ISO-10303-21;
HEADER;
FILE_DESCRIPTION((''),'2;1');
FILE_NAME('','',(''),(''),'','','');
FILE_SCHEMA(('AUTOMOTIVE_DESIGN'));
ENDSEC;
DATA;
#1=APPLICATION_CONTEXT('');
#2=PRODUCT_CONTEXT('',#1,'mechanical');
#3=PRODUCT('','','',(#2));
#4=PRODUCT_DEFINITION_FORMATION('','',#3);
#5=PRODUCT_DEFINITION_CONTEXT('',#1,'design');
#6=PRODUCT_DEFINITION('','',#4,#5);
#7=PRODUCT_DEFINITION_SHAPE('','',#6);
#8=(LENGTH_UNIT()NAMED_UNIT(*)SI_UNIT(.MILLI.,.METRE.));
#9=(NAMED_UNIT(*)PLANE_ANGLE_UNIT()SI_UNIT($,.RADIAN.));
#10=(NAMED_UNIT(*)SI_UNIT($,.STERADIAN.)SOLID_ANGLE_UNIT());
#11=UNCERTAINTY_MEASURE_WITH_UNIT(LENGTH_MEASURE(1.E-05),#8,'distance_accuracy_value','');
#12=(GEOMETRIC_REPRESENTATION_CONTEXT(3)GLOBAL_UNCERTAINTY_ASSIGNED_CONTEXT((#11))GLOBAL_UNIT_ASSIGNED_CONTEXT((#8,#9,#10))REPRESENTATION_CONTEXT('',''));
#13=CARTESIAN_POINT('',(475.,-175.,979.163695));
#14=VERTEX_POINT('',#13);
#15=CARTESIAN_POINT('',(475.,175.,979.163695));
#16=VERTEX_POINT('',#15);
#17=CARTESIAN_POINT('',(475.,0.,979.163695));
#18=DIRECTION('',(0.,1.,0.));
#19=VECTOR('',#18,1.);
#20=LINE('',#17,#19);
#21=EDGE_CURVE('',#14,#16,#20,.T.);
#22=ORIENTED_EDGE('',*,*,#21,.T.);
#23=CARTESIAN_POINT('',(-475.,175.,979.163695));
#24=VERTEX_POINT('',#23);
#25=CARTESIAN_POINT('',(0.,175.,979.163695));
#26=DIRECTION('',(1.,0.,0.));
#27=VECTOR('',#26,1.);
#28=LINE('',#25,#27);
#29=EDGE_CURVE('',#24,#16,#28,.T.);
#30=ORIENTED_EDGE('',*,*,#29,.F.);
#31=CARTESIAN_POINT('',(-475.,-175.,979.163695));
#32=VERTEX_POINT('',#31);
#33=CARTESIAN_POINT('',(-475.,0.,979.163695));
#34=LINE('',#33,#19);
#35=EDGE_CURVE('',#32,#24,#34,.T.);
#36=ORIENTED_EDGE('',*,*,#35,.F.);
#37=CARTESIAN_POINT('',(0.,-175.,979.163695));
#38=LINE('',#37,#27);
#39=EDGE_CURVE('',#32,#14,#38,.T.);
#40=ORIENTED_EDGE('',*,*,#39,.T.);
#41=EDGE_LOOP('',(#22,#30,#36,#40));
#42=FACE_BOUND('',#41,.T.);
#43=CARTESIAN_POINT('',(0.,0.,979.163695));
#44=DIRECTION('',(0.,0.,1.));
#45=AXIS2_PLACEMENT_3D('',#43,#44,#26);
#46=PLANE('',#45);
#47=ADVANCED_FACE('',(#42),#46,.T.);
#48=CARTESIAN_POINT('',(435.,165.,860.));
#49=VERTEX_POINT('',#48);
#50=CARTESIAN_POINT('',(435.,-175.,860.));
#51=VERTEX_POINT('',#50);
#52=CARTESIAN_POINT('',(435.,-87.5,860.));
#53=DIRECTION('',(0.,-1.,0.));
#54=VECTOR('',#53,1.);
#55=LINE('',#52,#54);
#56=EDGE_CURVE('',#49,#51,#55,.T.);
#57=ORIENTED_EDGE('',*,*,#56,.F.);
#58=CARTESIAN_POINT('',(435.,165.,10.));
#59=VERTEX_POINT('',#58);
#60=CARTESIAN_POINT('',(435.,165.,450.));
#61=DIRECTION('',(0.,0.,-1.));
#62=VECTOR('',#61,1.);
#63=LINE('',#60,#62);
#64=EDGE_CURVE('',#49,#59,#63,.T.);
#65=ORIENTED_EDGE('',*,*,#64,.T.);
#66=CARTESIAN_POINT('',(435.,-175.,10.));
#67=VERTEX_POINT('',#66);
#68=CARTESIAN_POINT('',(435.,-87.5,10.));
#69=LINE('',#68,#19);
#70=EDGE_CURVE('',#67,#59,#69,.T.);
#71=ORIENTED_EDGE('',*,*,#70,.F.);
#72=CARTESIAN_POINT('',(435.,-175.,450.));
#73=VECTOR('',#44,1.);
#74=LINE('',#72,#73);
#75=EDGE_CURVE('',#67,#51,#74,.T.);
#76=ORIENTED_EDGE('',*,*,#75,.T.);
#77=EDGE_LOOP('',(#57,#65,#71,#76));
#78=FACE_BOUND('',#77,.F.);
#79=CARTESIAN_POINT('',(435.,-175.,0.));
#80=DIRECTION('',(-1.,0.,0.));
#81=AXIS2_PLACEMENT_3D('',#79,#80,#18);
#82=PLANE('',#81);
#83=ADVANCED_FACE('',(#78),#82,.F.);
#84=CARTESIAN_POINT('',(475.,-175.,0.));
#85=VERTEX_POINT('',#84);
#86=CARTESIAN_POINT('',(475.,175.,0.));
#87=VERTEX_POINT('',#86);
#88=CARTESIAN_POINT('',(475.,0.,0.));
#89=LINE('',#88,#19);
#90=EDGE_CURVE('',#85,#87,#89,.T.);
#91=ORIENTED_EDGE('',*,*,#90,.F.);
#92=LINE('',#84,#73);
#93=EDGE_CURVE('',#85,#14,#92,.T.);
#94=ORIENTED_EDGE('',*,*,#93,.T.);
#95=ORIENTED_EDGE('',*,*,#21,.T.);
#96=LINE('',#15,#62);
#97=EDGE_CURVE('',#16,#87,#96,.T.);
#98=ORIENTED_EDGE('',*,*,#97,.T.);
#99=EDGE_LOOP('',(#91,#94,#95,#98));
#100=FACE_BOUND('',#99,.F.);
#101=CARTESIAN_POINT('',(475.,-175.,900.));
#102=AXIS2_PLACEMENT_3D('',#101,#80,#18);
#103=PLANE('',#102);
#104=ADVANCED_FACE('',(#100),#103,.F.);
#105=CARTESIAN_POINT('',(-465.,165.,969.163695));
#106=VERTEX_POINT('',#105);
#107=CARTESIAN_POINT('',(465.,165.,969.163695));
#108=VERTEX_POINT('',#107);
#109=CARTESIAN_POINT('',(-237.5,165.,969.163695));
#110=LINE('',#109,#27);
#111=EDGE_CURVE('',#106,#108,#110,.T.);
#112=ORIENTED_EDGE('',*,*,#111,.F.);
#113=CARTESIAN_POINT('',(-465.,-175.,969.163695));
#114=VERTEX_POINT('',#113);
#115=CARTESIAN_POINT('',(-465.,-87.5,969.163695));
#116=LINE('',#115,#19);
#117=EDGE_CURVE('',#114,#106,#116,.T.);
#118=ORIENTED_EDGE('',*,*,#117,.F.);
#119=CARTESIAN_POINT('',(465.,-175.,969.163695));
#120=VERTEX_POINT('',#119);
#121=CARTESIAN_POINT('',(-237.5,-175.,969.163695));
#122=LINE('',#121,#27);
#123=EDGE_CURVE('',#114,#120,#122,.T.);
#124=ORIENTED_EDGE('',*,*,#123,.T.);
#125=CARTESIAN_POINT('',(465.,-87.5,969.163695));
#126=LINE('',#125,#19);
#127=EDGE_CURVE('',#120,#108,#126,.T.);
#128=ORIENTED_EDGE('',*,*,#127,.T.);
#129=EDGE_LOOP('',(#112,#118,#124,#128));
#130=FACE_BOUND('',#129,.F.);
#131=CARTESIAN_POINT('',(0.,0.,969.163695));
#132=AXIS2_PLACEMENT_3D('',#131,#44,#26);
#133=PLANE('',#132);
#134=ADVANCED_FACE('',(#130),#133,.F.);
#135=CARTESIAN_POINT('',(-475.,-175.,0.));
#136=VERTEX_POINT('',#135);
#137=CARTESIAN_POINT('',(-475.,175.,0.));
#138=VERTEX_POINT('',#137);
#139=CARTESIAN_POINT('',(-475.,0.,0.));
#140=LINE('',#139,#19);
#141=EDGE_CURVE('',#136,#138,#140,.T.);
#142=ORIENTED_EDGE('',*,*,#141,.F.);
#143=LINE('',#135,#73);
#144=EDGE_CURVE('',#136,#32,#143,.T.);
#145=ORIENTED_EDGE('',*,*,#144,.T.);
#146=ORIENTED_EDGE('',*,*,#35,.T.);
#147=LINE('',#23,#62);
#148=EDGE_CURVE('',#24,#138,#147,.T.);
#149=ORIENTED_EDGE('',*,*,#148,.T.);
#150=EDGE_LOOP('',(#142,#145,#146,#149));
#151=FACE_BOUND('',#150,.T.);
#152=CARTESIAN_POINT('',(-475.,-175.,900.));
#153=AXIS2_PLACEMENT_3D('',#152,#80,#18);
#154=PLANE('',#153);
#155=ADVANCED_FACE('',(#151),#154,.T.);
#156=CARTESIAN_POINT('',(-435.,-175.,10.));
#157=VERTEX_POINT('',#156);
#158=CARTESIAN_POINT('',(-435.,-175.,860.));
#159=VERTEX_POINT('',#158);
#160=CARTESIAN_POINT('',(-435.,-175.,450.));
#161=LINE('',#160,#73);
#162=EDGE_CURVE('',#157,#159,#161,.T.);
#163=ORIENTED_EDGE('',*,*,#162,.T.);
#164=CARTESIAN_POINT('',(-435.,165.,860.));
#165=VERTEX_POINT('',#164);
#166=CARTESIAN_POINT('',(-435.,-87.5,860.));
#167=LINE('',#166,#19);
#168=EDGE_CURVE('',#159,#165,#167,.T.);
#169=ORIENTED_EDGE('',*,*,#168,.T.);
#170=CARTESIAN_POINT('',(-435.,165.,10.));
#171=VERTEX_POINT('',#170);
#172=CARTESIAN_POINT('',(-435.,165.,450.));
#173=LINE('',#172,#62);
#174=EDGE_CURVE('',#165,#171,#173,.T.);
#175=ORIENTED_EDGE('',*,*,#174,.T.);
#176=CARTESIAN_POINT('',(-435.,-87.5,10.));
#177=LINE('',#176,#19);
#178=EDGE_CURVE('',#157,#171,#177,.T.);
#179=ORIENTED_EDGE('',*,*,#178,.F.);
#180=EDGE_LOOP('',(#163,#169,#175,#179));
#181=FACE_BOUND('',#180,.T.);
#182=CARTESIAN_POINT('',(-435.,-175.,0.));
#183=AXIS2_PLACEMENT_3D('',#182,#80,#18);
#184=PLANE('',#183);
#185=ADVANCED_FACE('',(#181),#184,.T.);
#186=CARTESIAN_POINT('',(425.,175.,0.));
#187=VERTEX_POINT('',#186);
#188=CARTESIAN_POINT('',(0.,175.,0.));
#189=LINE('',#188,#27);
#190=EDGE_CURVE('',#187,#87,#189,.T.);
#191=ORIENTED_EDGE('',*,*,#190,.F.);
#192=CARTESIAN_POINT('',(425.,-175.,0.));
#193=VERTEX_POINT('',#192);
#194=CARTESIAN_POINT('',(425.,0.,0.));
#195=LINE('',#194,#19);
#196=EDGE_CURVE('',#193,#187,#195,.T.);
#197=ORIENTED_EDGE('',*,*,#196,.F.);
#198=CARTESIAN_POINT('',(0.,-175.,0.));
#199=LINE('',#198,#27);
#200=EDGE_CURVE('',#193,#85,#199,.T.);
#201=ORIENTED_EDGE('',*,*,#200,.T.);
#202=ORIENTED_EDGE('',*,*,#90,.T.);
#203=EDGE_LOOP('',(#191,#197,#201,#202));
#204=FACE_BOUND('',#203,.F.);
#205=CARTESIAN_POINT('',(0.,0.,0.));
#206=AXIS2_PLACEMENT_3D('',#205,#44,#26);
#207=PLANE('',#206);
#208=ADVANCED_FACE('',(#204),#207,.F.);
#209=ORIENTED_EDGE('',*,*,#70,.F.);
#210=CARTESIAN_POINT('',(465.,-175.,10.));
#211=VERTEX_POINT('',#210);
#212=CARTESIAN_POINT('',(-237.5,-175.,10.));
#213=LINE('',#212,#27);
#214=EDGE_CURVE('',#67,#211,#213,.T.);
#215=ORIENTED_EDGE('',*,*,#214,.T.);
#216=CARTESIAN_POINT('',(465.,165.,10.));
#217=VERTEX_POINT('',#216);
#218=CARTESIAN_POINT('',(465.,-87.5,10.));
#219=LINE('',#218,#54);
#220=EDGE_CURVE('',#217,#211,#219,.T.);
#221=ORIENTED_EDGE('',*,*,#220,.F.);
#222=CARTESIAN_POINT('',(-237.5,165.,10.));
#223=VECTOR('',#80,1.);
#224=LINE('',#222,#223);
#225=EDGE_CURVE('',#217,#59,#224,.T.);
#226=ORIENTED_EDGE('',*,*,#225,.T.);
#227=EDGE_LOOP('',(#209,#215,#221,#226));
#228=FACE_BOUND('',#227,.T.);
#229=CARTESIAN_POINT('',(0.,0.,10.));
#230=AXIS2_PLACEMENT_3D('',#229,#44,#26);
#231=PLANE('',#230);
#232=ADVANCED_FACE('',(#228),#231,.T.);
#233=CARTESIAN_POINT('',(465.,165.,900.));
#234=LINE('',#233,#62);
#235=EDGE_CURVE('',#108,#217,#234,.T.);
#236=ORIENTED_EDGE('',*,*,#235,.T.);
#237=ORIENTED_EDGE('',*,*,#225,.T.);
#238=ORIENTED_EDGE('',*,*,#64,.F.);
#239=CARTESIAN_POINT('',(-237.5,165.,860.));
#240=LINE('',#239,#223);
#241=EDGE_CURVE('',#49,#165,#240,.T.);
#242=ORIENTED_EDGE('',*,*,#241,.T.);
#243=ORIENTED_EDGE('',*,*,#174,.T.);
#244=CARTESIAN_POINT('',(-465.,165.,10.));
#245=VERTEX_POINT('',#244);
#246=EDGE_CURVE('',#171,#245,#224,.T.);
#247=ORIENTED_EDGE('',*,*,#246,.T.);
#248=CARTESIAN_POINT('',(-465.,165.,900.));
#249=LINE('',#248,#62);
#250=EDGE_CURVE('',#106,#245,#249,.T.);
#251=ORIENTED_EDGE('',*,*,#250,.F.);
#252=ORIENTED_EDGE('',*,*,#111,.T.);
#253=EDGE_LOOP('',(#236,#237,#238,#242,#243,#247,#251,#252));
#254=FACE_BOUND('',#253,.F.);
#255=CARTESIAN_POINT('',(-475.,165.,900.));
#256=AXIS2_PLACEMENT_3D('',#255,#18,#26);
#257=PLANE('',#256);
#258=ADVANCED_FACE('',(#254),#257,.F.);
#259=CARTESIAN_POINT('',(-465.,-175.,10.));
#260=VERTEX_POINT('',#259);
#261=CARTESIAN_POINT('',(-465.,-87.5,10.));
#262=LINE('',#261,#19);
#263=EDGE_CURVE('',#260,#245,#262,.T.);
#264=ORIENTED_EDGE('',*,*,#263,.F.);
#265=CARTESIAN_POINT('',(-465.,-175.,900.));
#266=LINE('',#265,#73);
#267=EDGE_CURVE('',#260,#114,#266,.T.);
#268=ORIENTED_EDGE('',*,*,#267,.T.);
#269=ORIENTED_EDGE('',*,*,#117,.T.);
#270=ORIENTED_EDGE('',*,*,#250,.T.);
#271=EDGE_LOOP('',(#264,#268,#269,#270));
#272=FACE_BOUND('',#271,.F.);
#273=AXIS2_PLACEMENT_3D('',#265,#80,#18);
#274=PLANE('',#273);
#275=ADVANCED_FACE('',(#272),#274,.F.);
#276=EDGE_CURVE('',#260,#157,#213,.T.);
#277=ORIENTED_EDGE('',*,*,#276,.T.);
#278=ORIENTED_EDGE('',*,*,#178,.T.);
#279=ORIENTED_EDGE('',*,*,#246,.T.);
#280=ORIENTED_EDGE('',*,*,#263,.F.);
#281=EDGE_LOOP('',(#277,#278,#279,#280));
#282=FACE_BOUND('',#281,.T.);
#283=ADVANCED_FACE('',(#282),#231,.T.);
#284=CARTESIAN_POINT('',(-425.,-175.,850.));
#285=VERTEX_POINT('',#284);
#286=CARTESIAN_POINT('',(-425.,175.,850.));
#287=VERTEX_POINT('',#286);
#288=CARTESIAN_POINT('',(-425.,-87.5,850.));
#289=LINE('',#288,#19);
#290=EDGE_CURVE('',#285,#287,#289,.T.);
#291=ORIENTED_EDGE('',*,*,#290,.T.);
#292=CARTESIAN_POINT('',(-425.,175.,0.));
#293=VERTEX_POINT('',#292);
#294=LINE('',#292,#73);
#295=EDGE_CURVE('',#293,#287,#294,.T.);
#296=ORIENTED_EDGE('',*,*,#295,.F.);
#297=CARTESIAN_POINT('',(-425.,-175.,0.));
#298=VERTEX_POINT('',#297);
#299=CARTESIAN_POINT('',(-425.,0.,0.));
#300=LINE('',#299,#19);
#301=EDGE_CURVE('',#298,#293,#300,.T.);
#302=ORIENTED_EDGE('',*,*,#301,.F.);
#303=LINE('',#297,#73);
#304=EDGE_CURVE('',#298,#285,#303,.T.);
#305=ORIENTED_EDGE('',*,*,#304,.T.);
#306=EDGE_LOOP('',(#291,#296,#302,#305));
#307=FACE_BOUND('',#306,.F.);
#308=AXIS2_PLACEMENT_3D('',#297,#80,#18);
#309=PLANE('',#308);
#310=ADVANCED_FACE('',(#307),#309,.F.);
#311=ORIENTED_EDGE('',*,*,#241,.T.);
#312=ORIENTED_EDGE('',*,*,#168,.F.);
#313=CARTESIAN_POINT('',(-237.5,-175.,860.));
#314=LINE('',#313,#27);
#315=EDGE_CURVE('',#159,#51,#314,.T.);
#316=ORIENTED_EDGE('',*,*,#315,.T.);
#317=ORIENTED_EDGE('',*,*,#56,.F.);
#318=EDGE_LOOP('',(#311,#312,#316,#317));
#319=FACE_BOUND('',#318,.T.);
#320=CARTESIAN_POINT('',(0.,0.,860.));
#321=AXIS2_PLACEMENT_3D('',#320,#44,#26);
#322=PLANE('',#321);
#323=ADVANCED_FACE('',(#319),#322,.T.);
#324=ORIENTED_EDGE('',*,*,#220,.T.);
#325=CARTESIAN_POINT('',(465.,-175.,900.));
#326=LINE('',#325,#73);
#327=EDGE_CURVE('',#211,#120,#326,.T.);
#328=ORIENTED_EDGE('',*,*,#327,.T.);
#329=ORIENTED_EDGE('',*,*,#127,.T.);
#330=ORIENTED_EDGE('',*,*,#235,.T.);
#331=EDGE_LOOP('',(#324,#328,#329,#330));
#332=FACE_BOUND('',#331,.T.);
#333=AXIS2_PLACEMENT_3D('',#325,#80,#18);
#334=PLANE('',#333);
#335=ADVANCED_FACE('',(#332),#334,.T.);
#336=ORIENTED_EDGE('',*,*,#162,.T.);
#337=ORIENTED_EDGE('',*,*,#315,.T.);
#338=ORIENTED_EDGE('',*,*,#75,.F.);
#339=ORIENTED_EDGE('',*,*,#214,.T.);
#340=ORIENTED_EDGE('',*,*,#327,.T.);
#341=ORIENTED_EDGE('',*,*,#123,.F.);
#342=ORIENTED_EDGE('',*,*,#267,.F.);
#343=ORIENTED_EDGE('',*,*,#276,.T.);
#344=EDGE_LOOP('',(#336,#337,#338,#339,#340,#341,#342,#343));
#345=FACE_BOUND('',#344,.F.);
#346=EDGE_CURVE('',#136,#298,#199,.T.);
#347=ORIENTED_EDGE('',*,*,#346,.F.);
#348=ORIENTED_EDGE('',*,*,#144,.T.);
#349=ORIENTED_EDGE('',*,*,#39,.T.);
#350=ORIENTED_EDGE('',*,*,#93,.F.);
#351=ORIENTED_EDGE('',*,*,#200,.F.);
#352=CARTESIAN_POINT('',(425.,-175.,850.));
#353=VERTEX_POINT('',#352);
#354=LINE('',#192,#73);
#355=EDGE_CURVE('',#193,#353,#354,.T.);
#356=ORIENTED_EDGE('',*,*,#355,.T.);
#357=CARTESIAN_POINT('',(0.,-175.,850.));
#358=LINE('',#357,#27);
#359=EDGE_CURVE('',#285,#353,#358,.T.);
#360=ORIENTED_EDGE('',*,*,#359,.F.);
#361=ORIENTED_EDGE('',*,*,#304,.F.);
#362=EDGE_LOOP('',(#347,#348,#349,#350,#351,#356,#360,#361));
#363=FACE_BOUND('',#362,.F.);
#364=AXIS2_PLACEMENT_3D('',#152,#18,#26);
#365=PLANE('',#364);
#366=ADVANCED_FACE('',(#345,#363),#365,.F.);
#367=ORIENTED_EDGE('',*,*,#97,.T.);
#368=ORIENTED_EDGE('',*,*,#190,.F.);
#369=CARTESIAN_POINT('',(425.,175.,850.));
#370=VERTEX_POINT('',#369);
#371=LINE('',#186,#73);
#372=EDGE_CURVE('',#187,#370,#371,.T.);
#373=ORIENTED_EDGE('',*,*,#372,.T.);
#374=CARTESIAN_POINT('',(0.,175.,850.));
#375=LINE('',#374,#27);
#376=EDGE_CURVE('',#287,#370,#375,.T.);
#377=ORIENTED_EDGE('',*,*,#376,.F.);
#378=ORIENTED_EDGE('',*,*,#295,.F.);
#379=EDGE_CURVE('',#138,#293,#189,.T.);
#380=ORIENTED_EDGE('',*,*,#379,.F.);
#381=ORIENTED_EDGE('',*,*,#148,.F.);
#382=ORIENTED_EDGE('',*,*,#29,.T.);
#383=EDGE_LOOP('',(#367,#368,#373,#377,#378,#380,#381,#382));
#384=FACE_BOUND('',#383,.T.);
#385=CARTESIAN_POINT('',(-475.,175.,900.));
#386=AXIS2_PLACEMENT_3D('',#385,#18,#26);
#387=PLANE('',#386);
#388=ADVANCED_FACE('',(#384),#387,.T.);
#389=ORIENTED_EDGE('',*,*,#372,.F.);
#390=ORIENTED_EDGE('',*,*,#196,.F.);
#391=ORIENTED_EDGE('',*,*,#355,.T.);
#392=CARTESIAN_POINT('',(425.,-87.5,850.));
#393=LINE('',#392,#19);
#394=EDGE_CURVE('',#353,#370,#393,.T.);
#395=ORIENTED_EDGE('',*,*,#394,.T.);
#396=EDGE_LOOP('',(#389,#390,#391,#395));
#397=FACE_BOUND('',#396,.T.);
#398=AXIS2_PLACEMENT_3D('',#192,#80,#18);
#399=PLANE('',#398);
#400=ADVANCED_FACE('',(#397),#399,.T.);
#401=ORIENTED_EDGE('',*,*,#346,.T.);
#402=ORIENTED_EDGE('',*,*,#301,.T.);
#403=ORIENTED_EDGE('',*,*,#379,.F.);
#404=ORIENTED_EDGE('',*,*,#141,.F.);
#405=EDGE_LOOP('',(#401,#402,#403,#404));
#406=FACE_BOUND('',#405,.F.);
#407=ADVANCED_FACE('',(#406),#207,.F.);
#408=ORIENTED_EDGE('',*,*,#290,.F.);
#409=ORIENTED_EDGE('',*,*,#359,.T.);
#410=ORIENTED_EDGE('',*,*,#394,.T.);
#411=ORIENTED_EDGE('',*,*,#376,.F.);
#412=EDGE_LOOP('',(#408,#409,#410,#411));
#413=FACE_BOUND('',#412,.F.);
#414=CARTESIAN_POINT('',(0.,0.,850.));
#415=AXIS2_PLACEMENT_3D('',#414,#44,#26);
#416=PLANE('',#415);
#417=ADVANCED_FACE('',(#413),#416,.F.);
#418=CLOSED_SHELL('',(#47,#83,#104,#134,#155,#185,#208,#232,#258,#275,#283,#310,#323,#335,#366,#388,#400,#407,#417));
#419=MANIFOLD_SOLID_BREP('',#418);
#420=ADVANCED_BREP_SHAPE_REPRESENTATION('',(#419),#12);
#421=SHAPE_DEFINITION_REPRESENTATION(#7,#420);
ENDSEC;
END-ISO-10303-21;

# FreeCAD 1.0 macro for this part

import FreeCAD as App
import Part
import Sketcher

V = App.Vector


def faces_at(feature, points):
    """Names of the faces that lie closest to the given points."""
    faces = feature.Shape.Faces
    near = lambda p: min(range(len(faces)), key=lambda i: faces[i].distToShape(Part.Vertex(*p))[0])
    return sorted({f"Face{near(p) + 1}" for p in points})

doc = App.newDocument("Part")
body = doc.addObject("PartDesign::Body", "Body")

# Sketch on XY plane
sketch1 = body.newObject("Sketcher::SketchObject", "Sketch")
sketch1.AttachmentSupport = (doc.getObject("XY_Plane"), [""])
sketch1.MapMode = "FlatFace"
sketch1.addGeometry([
    Part.LineSegment(V(-475, 175, 0), V(-475, -175, 0)),
    Part.LineSegment(V(-475, -175, 0), V(475, -175, 0)),
    Part.LineSegment(V(475, -175, 0), V(475, 175, 0)),
    Part.LineSegment(V(475, 175, 0), V(-475, 175, 0)),
], False)
sketch1.addConstraint([
    Sketcher.Constraint("Coincident", 0, 2, 1, 1),
    Sketcher.Constraint("Coincident", 1, 2, 2, 1),
    Sketcher.Constraint("Coincident", 2, 2, 3, 1),
    Sketcher.Constraint("Coincident", 3, 2, 0, 1),
    Sketcher.Constraint("Vertical", 0),
    Sketcher.Constraint("Horizontal", 1),
    Sketcher.Constraint("Vertical", 2),
    Sketcher.Constraint("Horizontal", 3),
    Sketcher.Constraint("Symmetric", 0, 2, 2, 2, -1, 1),
    Sketcher.Constraint("DistanceX", 1, 1, 1, 2, 950.0),
    Sketcher.Constraint("DistanceY", 0, 2, 0, 1, 350.0),
])
pad1 = body.newObject("PartDesign::Pad", "Pad")
pad1.Profile = sketch1
pad1.Length = 900
doc.recompute()

thickness = body.newObject("PartDesign::Thickness", "Thickness")
thickness.Base = (pad1, faces_at(pad1, [(0, -175, 450), (0, 0, 0), (0, 175, 450)]))
thickness.Value = 50
thickness.Reversed = True
thickness.Join = "Arc"

# Sketch on XY plane
sketch2 = body.newObject("Sketcher::SketchObject", "Sketch001")
sketch2.AttachmentSupport = (doc.getObject("XY_Plane"), [""])
sketch2.MapMode = "FlatFace"
sketch2.AttachmentOffset = App.Placement(V(0, 0, 900), App.Rotation())
sketch2.addGeometry([
    Part.LineSegment(V(-475, 175, 0), V(-475, -175, 0)),
    Part.LineSegment(V(-475, -175, 0), V(475, -175, 0)),
    Part.LineSegment(V(475, -175, 0), V(475, 175, 0)),
    Part.LineSegment(V(475, 175, 0), V(-475, 175, 0)),
], False)
sketch2.addConstraint([
    Sketcher.Constraint("Coincident", 0, 2, 1, 1),
    Sketcher.Constraint("Coincident", 1, 2, 2, 1),
    Sketcher.Constraint("Coincident", 2, 2, 3, 1),
    Sketcher.Constraint("Coincident", 3, 2, 0, 1),
    Sketcher.Constraint("Vertical", 0),
    Sketcher.Constraint("Horizontal", 1),
    Sketcher.Constraint("Vertical", 2),
    Sketcher.Constraint("Horizontal", 3),
    Sketcher.Constraint("Symmetric", 0, 2, 2, 2, -1, 1),
    Sketcher.Constraint("DistanceX", 1, 1, 1, 2, 950.0),
    Sketcher.Constraint("DistanceY", 0, 2, 0, 1, 350.0),
])
pad2 = body.newObject("PartDesign::Pad", "Pad001")
pad2.Profile = sketch2
pad2.Length = 79.163695
doc.recompute()

thickness2 = body.newObject("PartDesign::Thickness", "Thickness001")
thickness2.Base = (pad2, faces_at(pad2, [(0, -175, 881.247)]))
thickness2.Value = 10
thickness2.Reversed = True
thickness2.Join = "Intersection"

doc.recompute()
